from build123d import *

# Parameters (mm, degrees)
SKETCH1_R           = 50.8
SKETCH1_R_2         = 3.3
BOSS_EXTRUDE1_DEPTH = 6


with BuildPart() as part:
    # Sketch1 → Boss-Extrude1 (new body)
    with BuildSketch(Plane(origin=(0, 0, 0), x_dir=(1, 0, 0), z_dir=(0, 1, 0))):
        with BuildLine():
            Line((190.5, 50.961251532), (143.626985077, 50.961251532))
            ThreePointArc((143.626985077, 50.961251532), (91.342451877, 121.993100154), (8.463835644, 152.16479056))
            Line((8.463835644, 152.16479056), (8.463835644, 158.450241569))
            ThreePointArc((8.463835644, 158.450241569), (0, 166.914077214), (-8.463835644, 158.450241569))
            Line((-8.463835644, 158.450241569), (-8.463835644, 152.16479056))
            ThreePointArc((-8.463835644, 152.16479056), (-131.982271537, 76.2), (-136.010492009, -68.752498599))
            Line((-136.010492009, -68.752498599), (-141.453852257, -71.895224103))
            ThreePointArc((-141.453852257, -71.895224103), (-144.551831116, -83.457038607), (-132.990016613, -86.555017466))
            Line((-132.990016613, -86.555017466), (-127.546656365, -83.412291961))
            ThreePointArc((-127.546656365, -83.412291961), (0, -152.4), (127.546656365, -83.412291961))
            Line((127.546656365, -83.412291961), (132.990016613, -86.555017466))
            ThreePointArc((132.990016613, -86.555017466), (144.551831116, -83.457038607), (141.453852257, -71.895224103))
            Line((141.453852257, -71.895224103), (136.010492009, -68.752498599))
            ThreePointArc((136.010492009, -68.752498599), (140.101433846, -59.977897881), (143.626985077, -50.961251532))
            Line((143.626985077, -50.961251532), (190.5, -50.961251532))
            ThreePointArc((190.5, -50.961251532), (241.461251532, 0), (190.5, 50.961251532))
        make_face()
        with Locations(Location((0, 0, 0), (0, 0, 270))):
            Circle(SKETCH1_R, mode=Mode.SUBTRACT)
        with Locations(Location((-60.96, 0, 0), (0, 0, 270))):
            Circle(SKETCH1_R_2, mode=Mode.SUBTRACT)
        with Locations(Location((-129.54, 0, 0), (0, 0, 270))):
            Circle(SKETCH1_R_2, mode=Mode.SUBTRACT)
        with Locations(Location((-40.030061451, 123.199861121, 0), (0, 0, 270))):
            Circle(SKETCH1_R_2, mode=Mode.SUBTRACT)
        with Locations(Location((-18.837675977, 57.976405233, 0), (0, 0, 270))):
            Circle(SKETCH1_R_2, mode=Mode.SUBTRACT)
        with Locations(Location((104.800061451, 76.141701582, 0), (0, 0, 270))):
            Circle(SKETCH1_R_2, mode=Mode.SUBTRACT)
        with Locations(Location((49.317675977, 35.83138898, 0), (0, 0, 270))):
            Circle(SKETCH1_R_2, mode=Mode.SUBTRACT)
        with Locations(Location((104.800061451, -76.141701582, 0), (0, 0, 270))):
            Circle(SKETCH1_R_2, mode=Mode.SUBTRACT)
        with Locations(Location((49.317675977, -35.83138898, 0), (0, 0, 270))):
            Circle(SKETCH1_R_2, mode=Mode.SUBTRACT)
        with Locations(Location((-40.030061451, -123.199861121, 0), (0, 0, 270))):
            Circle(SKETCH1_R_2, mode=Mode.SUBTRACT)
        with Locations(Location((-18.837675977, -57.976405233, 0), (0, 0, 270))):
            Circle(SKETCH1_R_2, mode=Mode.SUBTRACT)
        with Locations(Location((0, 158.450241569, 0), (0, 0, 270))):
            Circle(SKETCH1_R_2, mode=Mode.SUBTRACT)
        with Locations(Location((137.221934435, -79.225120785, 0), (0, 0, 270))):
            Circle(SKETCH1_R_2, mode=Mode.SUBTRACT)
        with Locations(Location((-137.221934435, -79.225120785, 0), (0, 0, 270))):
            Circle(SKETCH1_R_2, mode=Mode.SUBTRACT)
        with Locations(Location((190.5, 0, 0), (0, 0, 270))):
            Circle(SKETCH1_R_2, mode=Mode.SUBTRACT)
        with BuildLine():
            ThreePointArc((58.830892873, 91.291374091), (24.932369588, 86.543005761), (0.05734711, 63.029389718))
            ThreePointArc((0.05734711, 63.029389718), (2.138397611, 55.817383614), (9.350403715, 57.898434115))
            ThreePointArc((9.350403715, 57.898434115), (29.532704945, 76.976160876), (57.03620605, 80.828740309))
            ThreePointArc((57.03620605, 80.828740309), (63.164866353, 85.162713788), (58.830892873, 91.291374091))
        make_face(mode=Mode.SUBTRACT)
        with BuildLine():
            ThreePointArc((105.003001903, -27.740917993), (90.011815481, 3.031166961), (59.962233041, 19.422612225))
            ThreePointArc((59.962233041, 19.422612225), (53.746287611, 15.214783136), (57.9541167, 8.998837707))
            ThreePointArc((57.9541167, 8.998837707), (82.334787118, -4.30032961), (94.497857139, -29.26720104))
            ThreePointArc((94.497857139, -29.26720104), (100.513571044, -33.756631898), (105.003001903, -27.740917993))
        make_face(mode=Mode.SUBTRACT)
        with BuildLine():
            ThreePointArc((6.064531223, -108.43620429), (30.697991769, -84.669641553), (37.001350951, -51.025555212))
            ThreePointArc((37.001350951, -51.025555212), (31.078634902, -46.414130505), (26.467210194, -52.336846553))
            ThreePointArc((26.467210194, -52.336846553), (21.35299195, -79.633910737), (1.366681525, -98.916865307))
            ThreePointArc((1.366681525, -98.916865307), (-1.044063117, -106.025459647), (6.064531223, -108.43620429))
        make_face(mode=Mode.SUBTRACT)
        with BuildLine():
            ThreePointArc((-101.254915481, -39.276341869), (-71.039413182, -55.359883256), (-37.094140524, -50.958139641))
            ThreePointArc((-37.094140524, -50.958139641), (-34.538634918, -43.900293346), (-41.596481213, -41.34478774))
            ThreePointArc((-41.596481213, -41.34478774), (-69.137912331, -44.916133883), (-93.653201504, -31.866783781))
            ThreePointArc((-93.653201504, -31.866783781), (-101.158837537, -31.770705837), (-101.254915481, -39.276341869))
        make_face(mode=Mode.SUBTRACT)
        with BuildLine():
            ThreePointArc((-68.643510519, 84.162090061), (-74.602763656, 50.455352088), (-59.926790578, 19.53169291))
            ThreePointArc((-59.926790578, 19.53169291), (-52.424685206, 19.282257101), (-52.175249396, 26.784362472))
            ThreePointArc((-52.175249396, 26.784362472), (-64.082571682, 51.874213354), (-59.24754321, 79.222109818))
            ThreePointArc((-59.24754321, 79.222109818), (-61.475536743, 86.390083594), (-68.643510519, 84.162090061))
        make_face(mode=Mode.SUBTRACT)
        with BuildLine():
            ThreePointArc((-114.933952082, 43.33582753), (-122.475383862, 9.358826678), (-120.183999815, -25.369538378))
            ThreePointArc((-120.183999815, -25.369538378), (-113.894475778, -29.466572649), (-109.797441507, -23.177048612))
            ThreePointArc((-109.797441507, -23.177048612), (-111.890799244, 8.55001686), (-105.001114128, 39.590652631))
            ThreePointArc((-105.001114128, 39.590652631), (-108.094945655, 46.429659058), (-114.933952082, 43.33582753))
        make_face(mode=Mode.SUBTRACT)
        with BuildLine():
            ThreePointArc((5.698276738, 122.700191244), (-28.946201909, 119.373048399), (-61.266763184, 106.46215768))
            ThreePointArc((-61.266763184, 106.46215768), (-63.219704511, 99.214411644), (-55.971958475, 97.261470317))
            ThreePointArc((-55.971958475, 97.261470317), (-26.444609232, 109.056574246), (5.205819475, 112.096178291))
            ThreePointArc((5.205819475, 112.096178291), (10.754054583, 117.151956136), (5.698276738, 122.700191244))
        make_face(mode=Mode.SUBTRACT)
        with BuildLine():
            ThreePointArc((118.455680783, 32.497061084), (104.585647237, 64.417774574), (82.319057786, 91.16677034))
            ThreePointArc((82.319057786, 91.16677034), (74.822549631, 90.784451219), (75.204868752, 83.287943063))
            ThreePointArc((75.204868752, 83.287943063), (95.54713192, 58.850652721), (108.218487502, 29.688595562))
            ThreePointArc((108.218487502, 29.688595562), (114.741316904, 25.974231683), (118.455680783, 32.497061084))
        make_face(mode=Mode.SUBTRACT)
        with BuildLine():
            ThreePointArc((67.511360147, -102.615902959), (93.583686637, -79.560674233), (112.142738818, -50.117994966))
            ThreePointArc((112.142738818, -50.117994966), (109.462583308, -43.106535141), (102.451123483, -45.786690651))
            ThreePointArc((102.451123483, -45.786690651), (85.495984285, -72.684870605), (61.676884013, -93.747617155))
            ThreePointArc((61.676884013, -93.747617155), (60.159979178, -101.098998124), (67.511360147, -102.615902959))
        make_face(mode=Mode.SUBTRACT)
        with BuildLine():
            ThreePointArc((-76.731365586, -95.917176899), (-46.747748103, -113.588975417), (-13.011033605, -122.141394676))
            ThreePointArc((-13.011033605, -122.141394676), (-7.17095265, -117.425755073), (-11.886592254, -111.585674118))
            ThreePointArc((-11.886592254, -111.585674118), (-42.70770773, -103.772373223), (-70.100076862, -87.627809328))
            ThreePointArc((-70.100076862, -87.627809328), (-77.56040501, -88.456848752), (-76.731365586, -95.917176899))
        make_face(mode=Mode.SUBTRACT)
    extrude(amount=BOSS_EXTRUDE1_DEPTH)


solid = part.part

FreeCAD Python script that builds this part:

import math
import FreeCAD as App
import Part
import Sketcher

doc = App.newDocument("Part")
body = doc.addObject("PartDesign::Body", "Body")

sketch1 = doc.addObject("Sketcher::SketchObject", "Sketch")
body.addObject(sketch1)
sketch1.AttachmentSupport = (doc.XZ_Plane, [""])
sketch1.MapMode = "FlatFace"
sketch1.addGeometry(Part.LineSegment(App.Vector(190.5, -50.961252, 0), App.Vector(143.626985, -50.961252, 0)), False)
sketch1.addGeometry(Part.ArcOfCircle(Part.Circle(App.Vector(0, 0, 0), App.Vector(0, 0, 1), 152.4), math.radians(-86.816327), math.radians(-19.535534)), False)
sketch1.addGeometry(Part.LineSegment(App.Vector(8.463836, -152.164791, 0), App.Vector(8.463836, -158.450242, 0)), False)
sketch1.addGeometry(Part.ArcOfCircle(Part.Circle(App.Vector(0, -158.450242, 0), App.Vector(0, 0, 1), 8.463836), math.radians(180), math.radians(360)), False)
sketch1.addGeometry(Part.LineSegment(App.Vector(-8.463836, -158.450242, 0), App.Vector(-8.463836, -152.164791, 0)), False)
sketch1.addGeometry(Part.ArcOfCircle(Part.Circle(App.Vector(0, 0, 0), App.Vector(0, 0, 1), 152.4), math.radians(153.183673), math.radians(266.816327)), False)
sketch1.addGeometry(Part.LineSegment(App.Vector(-136.010492, 68.752499, 0), App.Vector(-141.453852, 71.895224, 0)), False)
sketch1.addGeometry(Part.ArcOfCircle(Part.Circle(App.Vector(-137.221934, 79.225121, 0), App.Vector(0, 0, 1), 8.463836), math.radians(60), math.radians(240)), False)
sketch1.addGeometry(Part.LineSegment(App.Vector(-132.990017, 86.555017, 0), App.Vector(-127.546656, 83.412292, 0)), False)
sketch1.addGeometry(Part.ArcOfCircle(Part.Circle(App.Vector(0, 0, 0), App.Vector(0, 0, 1), 152.4), math.radians(33.183673), math.radians(146.816327)), False)
sketch1.addGeometry(Part.LineSegment(App.Vector(127.546656, 83.412292, 0), App.Vector(132.990017, 86.555017, 0)), False)
sketch1.addGeometry(Part.ArcOfCircle(Part.Circle(App.Vector(137.221934, 79.225121, 0), App.Vector(0, 0, 1), 8.463836), math.radians(-60), math.radians(120)), False)
sketch1.addGeometry(Part.LineSegment(App.Vector(141.453852, 71.895224, 0), App.Vector(136.010492, 68.752499, 0)), False)
sketch1.addGeometry(Part.ArcOfCircle(Part.Circle(App.Vector(0, 0, 0), App.Vector(0, 0, 1), 152.4), math.radians(19.535534), math.radians(26.816327)), False)
sketch1.addGeometry(Part.LineSegment(App.Vector(143.626985, 50.961252, 0), App.Vector(190.5, 50.961252, 0)), False)
sketch1.addGeometry(Part.ArcOfCircle(Part.Circle(App.Vector(190.5, 0, 0), App.Vector(0, 0, 1), 50.961252), math.radians(-90), math.radians(90)), False)
sketch1.addGeometry(Part.Circle(App.Vector(-137.221934, 79.225121, 0), App.Vector(0, 0, 1), 3.3), False)
sketch1.addGeometry(Part.Circle(App.Vector(-40.030061, 123.199861, 0), App.Vector(0, 0, 1), 3.3), False)
sketch1.addGeometry(Part.ArcOfCircle(Part.Circle(App.Vector(0, 0, 0), App.Vector(0, 0, 1), 122.832436), math.radians(96.080466), math.radians(128.658943)), False)
sketch1.addGeometry(Part.ArcOfCircle(Part.Circle(App.Vector(-73.415721, 91.772493, 0), App.Vector(0, 0, 1), 5.307721), math.radians(128.658943), math.radians(308.658943)), False)
sketch1.addGeometry(Part.ArcOfCircle(Part.Circle(App.Vector(0, 0, 0), App.Vector(0, 0, 1), 112.216994), math.radians(96.080466), math.radians(128.658943)), False)
sketch1.addGeometry(Part.ArcOfCircle(Part.Circle(App.Vector(-12.448813, 116.863534, 0), App.Vector(0, 0, 1), 5.307721), math.radians(-83.919534), math.radians(96.080466)), False)
sketch1.addGeometry(Part.Circle(App.Vector(-18.837676, 57.976405, 0), App.Vector(0, 0, 1), 3.3), False)
sketch1.addGeometry(Part.ArcOfCircle(Part.Circle(App.Vector(-18.837676, 57.976405, 0), App.Vector(0, 0, 1), 56.269985), math.radians(-7.095687), math.radians(63.73339)), False)
sketch1.addGeometry(Part.ArcOfCircle(Part.Circle(App.Vector(3.715606, 103.676535, 0), App.Vector(0, 0, 1), 5.307721), math.radians(63.73339), math.radians(243.73339)), False)
sketch1.addGeometry(Part.ArcOfCircle(Part.Circle(App.Vector(-18.837676, 57.976405, 0), App.Vector(0, 0, 1), 45.654543), math.radians(-7.095687), math.radians(63.73339)), False)
sketch1.addGeometry(Part.ArcOfCircle(Part.Circle(App.Vector(31.734281, 51.681201, 0), App.Vector(0, 0, 1), 5.307721), math.radians(172.904313), math.radians(352.904313)), False)
sketch1.addGeometry(Part.ArcOfCircle(Part.Circle(App.Vector(-60.96, 0, 0), App.Vector(0, 0, 1), 56.269985), math.radians(64.904313), math.radians(135.73339)), False)
sketch1.addGeometry(Part.ArcOfCircle(Part.Circle(App.Vector(-97.454058, 35.571563, 0), App.Vector(0, 0, 1), 5.307721), math.radians(135.73339), math.radians(315.73339)), False)
sketch1.addGeometry(Part.ArcOfCircle(Part.Circle(App.Vector(-60.96, 0, 0), App.Vector(0, 0, 1), 45.654543), math.radians(64.904313), math.radians(135.73339)), False)
sketch1.addGeometry(Part.ArcOfCircle(Part.Circle(App.Vector(-39.345311, 46.151464, 0), App.Vector(0, 0, 1), 5.307721), math.radians(-115.095687), math.radians(64.904313)), False)
sketch1.addGeometry(Part.Circle(App.Vector(-129.54, 0, 0), App.Vector(0, 0, 1), 3.3), False)
sketch1.addGeometry(Part.ArcOfCircle(Part.Circle(App.Vector(0, 0, 0), App.Vector(0, 0, 1), 122.832436), math.radians(168.080466), math.radians(200.658943)), False)
sketch1.addGeometry(Part.ArcOfCircle(Part.Circle(App.Vector(-109.967533, -41.46324, 0), App.Vector(0, 0, 1), 5.307721), math.radians(-159.341057), math.radians(20.658943)), False)
sketch1.addGeometry(Part.ArcOfCircle(Part.Circle(App.Vector(0, 0, 0), App.Vector(0, 0, 1), 112.216994), math.radians(168.080466), math.radians(200.658943)), False)
sketch1.addGeometry(Part.ArcOfCircle(Part.Circle(App.Vector(-114.990721, 24.273293, 0), App.Vector(0, 0, 1), 5.307721), math.radians(-11.919534), math.radians(168.080466)), False)
sketch1.addGeometry(Part.Circle(App.Vector(-60.96, 0, 0), App.Vector(0, 0, 1), 3.3), False)
sketch1.addGeometry(Part.Circle(App.Vector(0, 0, 0), App.Vector(0, 0, 1), 50.8), False)
sketch1.addGeometry(Part.ArcOfCircle(Part.Circle(App.Vector(0, 0, 0), App.Vector(0, 0, 1), 122.832436), math.radians(24.080466), math.radians(56.658943)), False)
sketch1.addGeometry(Part.ArcOfCircle(Part.Circle(App.Vector(64.594122, 98.18176, 0), App.Vector(0, 0, 1), 5.307721), math.radians(56.658943), math.radians(236.658943)), False)
sketch1.addGeometry(Part.ArcOfCircle(Part.Circle(App.Vector(0, 0, 0), App.Vector(0, 0, 1), 112.216994), math.radians(24.080466), math.radians(56.658943)), False)
sketch1.addGeometry(Part.ArcOfCircle(Part.Circle(App.Vector(107.296931, 47.952343, 0), App.Vector(0, 0, 1), 5.307721), math.radians(-155.919534), math.radians(24.080466)), False)
sketch1.addGeometry(Part.Circle(App.Vector(104.800061, 76.141702, 0), App.Vector(0, 0, 1), 3.3), False)
sketch1.addGeometry(Part.Circle(App.Vector(137.221934, 79.225121, 0), App.Vector(0, 0, 1), 3.3), False)
sketch1.addGeometry(Part.Circle(App.Vector(49.317676, 35.831389, 0), App.Vector(0, 0, 1), 3.3), False)
sketch1.addGeometry(Part.ArcOfCircle(Part.Circle(App.Vector(49.317676, 35.831389, 0), App.Vector(0, 0, 1), 56.269985), math.radians(-79.095687), math.radians(-8.26661)), False)
sketch1.addGeometry(Part.ArcOfCircle(Part.Circle(App.Vector(99.75043, 28.50406, 0), App.Vector(0, 0, 1), 5.307721), math.radians(-8.26661), math.radians(171.73339)), False)
sketch1.addGeometry(Part.ArcOfCircle(Part.Circle(App.Vector(49.317676, 35.831389, 0), App.Vector(0, 0, 1), 45.654543), math.radians(-79.095687), math.radians(-8.26661)), False)
sketch1.addGeometry(Part.ArcOfCircle(Part.Circle(App.Vector(58.958175, -14.210725, 0), App.Vector(0, 0, 1), 5.307721), math.radians(100.904313), math.radians(280.904313)), False)
sketch1.addGeometry(Part.Circle(App.Vector(190.5, 0, 0), App.Vector(0, 0, 1), 3.3), False)
sketch1.addGeometry(Part.ArcOfCircle(Part.Circle(App.Vector(-18.837676, -57.976405, 0), App.Vector(0, 0, 1), 56.269985), math.radians(136.904313), math.radians(207.73339)), False)
sketch1.addGeometry(Part.ArcOfCircle(Part.Circle(App.Vector(-63.945527, -81.6921, 0), App.Vector(0, 0, 1), 5.307721), math.radians(-152.26661), math.radians(27.73339)), False)
sketch1.addGeometry(Part.ArcOfCircle(Part.Circle(App.Vector(-18.837676, -57.976405, 0), App.Vector(0, 0, 1), 45.654543), math.radians(136.904313), math.radians(207.73339)), False)
sketch1.addGeometry(Part.ArcOfCircle(Part.Circle(App.Vector(-56.05102, -23.158028, 0), App.Vector(0, 0, 1), 5.307721), math.radians(-43.095687), math.radians(136.904313)), False)
sketch1.addGeometry(Part.Circle(App.Vector(-18.837676, -57.976405, 0), App.Vector(0, 0, 1), 3.3), False)
sketch1.addGeometry(Part.Circle(App.Vector(-40.030061, -123.199861, 0), App.Vector(0, 0, 1), 3.3), False)
sketch1.addGeometry(Part.ArcOfCircle(Part.Circle(App.Vector(0, 0, 0), App.Vector(0, 0, 1), 122.832436), math.radians(-119.919534), math.radians(-87.341057)), False)
sketch1.addGeometry(Part.ArcOfCircle(Part.Circle(App.Vector(5.452048, -117.398185, 0), App.Vector(0, 0, 1), 5.307721), math.radians(-87.341057), math.radians(92.658943)), False)
sketch1.addGeometry(Part.ArcOfCircle(Part.Circle(App.Vector(0, 0, 0), App.Vector(0, 0, 1), 112.216994), math.radians(-119.919534), math.radians(-87.341057)), False)
sketch1.addGeometry(Part.ArcOfCircle(Part.Circle(App.Vector(-58.619361, -101.861814, 0), App.Vector(0, 0, 1), 5.307721), math.radians(60.080466), math.radians(240.080466)), False)
sketch1.addGeometry(Part.Circle(App.Vector(0, -158.450242, 0), App.Vector(0, 0, 1), 3.3), False)
sketch1.addGeometry(Part.Circle(App.Vector(49.317676, -35.831389, 0), App.Vector(0, 0, 1), 3.3), False)
sketch1.addGeometry(Part.ArcOfCircle(Part.Circle(App.Vector(49.317676, -35.831389, 0), App.Vector(0, 0, 1), 56.269985), math.radians(-151.095687), math.radians(-80.26661)), False)
sketch1.addGeometry(Part.ArcOfCircle(Part.Circle(App.Vector(57.933549, -86.060057, 0), App.Vector(0, 0, 1), 5.307721), math.radians(-80.26661), math.radians(99.73339)), False)
sketch1.addGeometry(Part.ArcOfCircle(Part.Circle(App.Vector(49.317676, -35.831389, 0), App.Vector(0, 0, 1), 45.654543), math.radians(-151.095687), math.radians(-80.26661)), False)
sketch1.addGeometry(Part.ArcOfCircle(Part.Circle(App.Vector(4.703875, -60.463912, 0), App.Vector(0, 0, 1), 5.307721), math.radians(28.904313), math.radians(208.904313)), False)
sketch1.addGeometry(Part.ArcOfCircle(Part.Circle(App.Vector(0, 0, 0), App.Vector(0, 0, 1), 122.832436), math.radians(-47.919534), math.radians(-15.341057)), False)
sketch1.addGeometry(Part.ArcOfCircle(Part.Circle(App.Vector(113.337084, -31.092828, 0), App.Vector(0, 0, 1), 5.307721), math.radians(-15.341057), math.radians(164.658943)), False)
sketch1.addGeometry(Part.ArcOfCircle(Part.Circle(App.Vector(0, 0, 0), App.Vector(0, 0, 1), 112.216994), math.radians(-47.919534), math.radians(-15.341057)), False)
sketch1.addGeometry(Part.ArcOfCircle(Part.Circle(App.Vector(78.761963, -87.227357, 0), App.Vector(0, 0, 1), 5.307721), math.radians(132.080466), math.radians(312.080466)), False)
sketch1.addGeometry(Part.Circle(App.Vector(104.800061, -76.141702, 0), App.Vector(0, 0, 1), 3.3), False)
sketch1.addConstraint(Sketcher.Constraint("Coincident", 0, 2, 1, 2))
sketch1.addConstraint(Sketcher.Constraint("Coincident", 1, 1, 2, 1))
sketch1.addConstraint(Sketcher.Constraint("Coincident", 2, 2, 3, 2))
sketch1.addConstraint(Sketcher.Constraint("Coincident", 3, 1, 4, 1))
sketch1.addConstraint(Sketcher.Constraint("Coincident", 4, 2, 5, 2))
sketch1.addConstraint(Sketcher.Constraint("Coincident", 5, 1, 6, 1))
sketch1.addConstraint(Sketcher.Constraint("Coincident", 6, 2, 7, 2))
sketch1.addConstraint(Sketcher.Constraint("Coincident", 7, 1, 8, 1))
sketch1.addConstraint(Sketcher.Constraint("Coincident", 8, 2, 9, 2))
sketch1.addConstraint(Sketcher.Constraint("Coincident", 9, 1, 10, 1))
sketch1.addConstraint(Sketcher.Constraint("Coincident", 10, 2, 11, 2))
sketch1.addConstraint(Sketcher.Constraint("Coincident", 11, 1, 12, 1))
sketch1.addConstraint(Sketcher.Constraint("Coincident", 12, 2, 13, 2))
sketch1.addConstraint(Sketcher.Constraint("Coincident", 13, 1, 14, 1))
sketch1.addConstraint(Sketcher.Constraint("Coincident", 14, 2, 15, 2))
sketch1.addConstraint(Sketcher.Constraint("Coincident", 15, 1, 0, 1))
sketch1.addConstraint(Sketcher.Constraint("Coincident", 18, 2, 19, 1))
sketch1.addConstraint(Sketcher.Constraint("Coincident", 19, 2, 20, 2))
sketch1.addConstraint(Sketcher.Constraint("Coincident", 20, 1, 21, 1))
sketch1.addConstraint(Sketcher.Constraint("Coincident", 21, 2, 18, 1))
sketch1.addConstraint(Sketcher.Constraint("Coincident", 23, 2, 24, 1))
sketch1.addConstraint(Sketcher.Constraint("Coincident", 24, 2, 25, 2))
sketch1.addConstraint(Sketcher.Constraint("Coincident", 25, 1, 26, 1))
sketch1.addConstraint(Sketcher.Constraint("Coincident", 26, 2, 23, 1))
sketch1.addConstraint(Sketcher.Constraint("Coincident", 27, 2, 28, 1))
sketch1.addConstraint(Sketcher.Constraint("Coincident", 28, 2, 29, 2))
sketch1.addConstraint(Sketcher.Constraint("Coincident", 29, 1, 30, 1))
sketch1.addConstraint(Sketcher.Constraint("Coincident", 30, 2, 27, 1))
sketch1.addConstraint(Sketcher.Constraint("Coincident", 32, 2, 33, 1))
sketch1.addConstraint(Sketcher.Constraint("Coincident", 33, 2, 34, 2))
sketch1.addConstraint(Sketcher.Constraint("Coincident", 34, 1, 35, 1))
sketch1.addConstraint(Sketcher.Constraint("Coincident", 35, 2, 32, 1))
sketch1.addConstraint(Sketcher.Constraint("Coincident", 38, 2, 39, 1))
sketch1.addConstraint(Sketcher.Constraint("Coincident", 39, 2, 40, 2))
sketch1.addConstraint(Sketcher.Constraint("Coincident", 40, 1, 41, 1))
sketch1.addConstraint(Sketcher.Constraint("Coincident", 41, 2, 38, 1))
sketch1.addConstraint(Sketcher.Constraint("Coincident", 45, 2, 46, 1))
sketch1.addConstraint(Sketcher.Constraint("Coincident", 46, 2, 47, 2))
sketch1.addConstraint(Sketcher.Constraint("Coincident", 47, 1, 48, 1))
sketch1.addConstraint(Sketcher.Constraint("Coincident", 48, 2, 45, 1))
sketch1.addConstraint(Sketcher.Constraint("Coincident", 50, 2, 51, 1))
sketch1.addConstraint(Sketcher.Constraint("Coincident", 51, 2, 52, 2))
sketch1.addConstraint(Sketcher.Constraint("Coincident", 52, 1, 53, 1))
sketch1.addConstraint(Sketcher.Constraint("Coincident", 53, 2, 50, 1))
sketch1.addConstraint(Sketcher.Constraint("Coincident", 56, 2, 57, 1))
sketch1.addConstraint(Sketcher.Constraint("Coincident", 57, 2, 58, 2))
sketch1.addConstraint(Sketcher.Constraint("Coincident", 58, 1, 59, 1))
sketch1.addConstraint(Sketcher.Constraint("Coincident", 59, 2, 56, 1))
sketch1.addConstraint(Sketcher.Constraint("Coincident", 62, 2, 63, 1))
sketch1.addConstraint(Sketcher.Constraint("Coincident", 63, 2, 64, 2))
sketch1.addConstraint(Sketcher.Constraint("Coincident", 64, 1, 65, 1))
sketch1.addConstraint(Sketcher.Constraint("Coincident", 65, 2, 62, 1))
sketch1.addConstraint(Sketcher.Constraint("Coincident", 66, 2, 67, 1))
sketch1.addConstraint(Sketcher.Constraint("Coincident", 67, 2, 68, 2))
sketch1.addConstraint(Sketcher.Constraint("Coincident", 68, 1, 69, 1))
sketch1.addConstraint(Sketcher.Constraint("Coincident", 69, 2, 66, 1))
sketch1.addConstraint(Sketcher.Constraint("Horizontal", 0))
sketch1.addConstraint(Sketcher.Constraint("Vertical", 2))
sketch1.addConstraint(Sketcher.Constraint("Vertical", 4))
sketch1.addConstraint(Sketcher.Constraint("Horizontal", 14))
sketch1.addConstraint(Sketcher.Constraint("Coincident", 1, 3, -1, 1))
sketch1.addConstraint(Sketcher.Constraint("Coincident", 5, 3, -1, 1))
sketch1.addConstraint(Sketcher.Constraint("Coincident", 9, 3, -1, 1))
sketch1.addConstraint(Sketcher.Constraint("Coincident", 13, 3, -1, 1))
sketch1.addConstraint(Sketcher.Constraint("Coincident", 18, 3, -1, 1))
sketch1.addConstraint(Sketcher.Constraint("Coincident", 20, 3, -1, 1))
sketch1.addConstraint(Sketcher.Constraint("Coincident", 32, 3, -1, 1))
sketch1.addConstraint(Sketcher.Constraint("Coincident", 34, 3, -1, 1))
sketch1.addConstraint(Sketcher.Constraint("Coincident", 37, 3, -1, 1))
sketch1.addConstraint(Sketcher.Constraint("Coincident", 38, 3, -1, 1))
sketch1.addConstraint(Sketcher.Constraint("Coincident", 40, 3, -1, 1))
sketch1.addConstraint(Sketcher.Constraint("Coincident", 56, 3, -1, 1))
sketch1.addConstraint(Sketcher.Constraint("Coincident", 58, 3, -1, 1))
sketch1.addConstraint(Sketcher.Constraint("Coincident", 66, 3, -1, 1))
sketch1.addConstraint(Sketcher.Constraint("Coincident", 68, 3, -1, 1))
sketch1.addConstraint(Sketcher.Constraint("Coincident", 16, 3, 7, 3))
sketch1.addConstraint(Sketcher.Constraint("Coincident", 23, 3, 22, 3))
sketch1.addConstraint(Sketcher.Constraint("Coincident", 25, 3, 22, 3))
sketch1.addConstraint(Sketcher.Constraint("Coincident", 29, 3, 27, 3))
sketch1.addConstraint(Sketcher.Constraint("Coincident", 36, 3, 27, 3))
sketch1.addConstraint(Sketcher.Constraint("Coincident", 43, 3, 11, 3))
sketch1.addConstraint(Sketcher.Constraint("Coincident", 45, 3, 44, 3))
sketch1.addConstraint(Sketcher.Constraint("Coincident", 47, 3, 44, 3))
sketch1.addConstraint(Sketcher.Constraint("Coincident", 49, 3, 15, 3))
sketch1.addConstraint(Sketcher.Constraint("Coincident", 52, 3, 50, 3))
sketch1.addConstraint(Sketcher.Constraint("Coincident", 54, 3, 50, 3))
sketch1.addConstraint(Sketcher.Constraint("Coincident", 60, 3, 3, 3))
sketch1.addConstraint(Sketcher.Constraint("Coincident", 62, 3, 61, 3))
sketch1.addConstraint(Sketcher.Constraint("Coincident", 64, 3, 61, 3))
sketch1.addConstraint(Sketcher.Constraint("PointOnObject", 3, 3, -2))
sketch1.addConstraint(Sketcher.Constraint("PointOnObject", 15, 3, -1))
sketch1.addConstraint(Sketcher.Constraint("PointOnObject", 27, 3, -1))
sketch1.addConstraint(Sketcher.Constraint("PointOnObject", 31, 3, -1))
sketch1.addConstraint(Sketcher.Constraint("Diameter", 16, 6.6))
sketch1.addConstraint(Sketcher.Constraint("Diameter", 17, 6.6))
sketch1.addConstraint(Sketcher.Constraint("Diameter", 22, 6.6))
sketch1.addConstraint(Sketcher.Constraint("Diameter", 31, 6.6))
sketch1.addConstraint(Sketcher.Constraint("Diameter", 36, 6.6))
sketch1.addConstraint(Sketcher.Constraint("Diameter", 37, 101.6))
sketch1.addConstraint(Sketcher.Constraint("Diameter", 42, 6.6))
sketch1.addConstraint(Sketcher.Constraint("Diameter", 43, 6.6))
sketch1.addConstraint(Sketcher.Constraint("Diameter", 44, 6.6))
sketch1.addConstraint(Sketcher.Constraint("Diameter", 49, 6.6))
sketch1.addConstraint(Sketcher.Constraint("Diameter", 54, 6.6))
sketch1.addConstraint(Sketcher.Constraint("Diameter", 55, 6.6))
sketch1.addConstraint(Sketcher.Constraint("Diameter", 60, 6.6))
sketch1.addConstraint(Sketcher.Constraint("Diameter", 61, 6.6))
sketch1.addConstraint(Sketcher.Constraint("Diameter", 70, 6.6))
sketch1.addConstraint(Sketcher.Constraint("Radius", 1, 152.4))
sketch1.addConstraint(Sketcher.Constraint("Radius", 5, 152.4))
sketch1.addConstraint(Sketcher.Constraint("Radius", 9, 152.4))
sketch1.addConstraint(Sketcher.Constraint("Radius", 13, 152.4))
sketch1.addConstraint(Sketcher.Constraint("DistanceX", -1, 1, 15, 3, 190.5))
sketch1.addConstraint(Sketcher.Constraint("DistanceX", -1, 1, 14, 2, 190.5))
sketch1.addConstraint(Sketcher.Constraint("DistanceX", -1, 1, 15, 1, 190.5))
sketch1.addConstraint(Sketcher.Constraint("DistanceX", 27, 3, -1, 1, 60.96))
sketch1.addConstraint(Sketcher.Constraint("DistanceX", 31, 3, -1, 1, 129.54))
sketch1.addConstraint(Sketcher.Constraint("Radius", 15, 50.961252))
sketch1.addConstraint(Sketcher.Constraint("Radius", 19, 5.307721))
sketch1.addConstraint(Sketcher.Constraint("Radius", 24, 5.307721))
sketch1.addConstraint(Sketcher.Constraint("Radius", 28, 5.307721))
sketch1.addConstraint(Sketcher.Constraint("Radius", 33, 5.307721))
sketch1.addConstraint(Sketcher.Constraint("Radius", 39, 5.307721))
sketch1.addConstraint(Sketcher.Constraint("Radius", 46, 5.307721))
sketch1.addConstraint(Sketcher.Constraint("Radius", 51, 5.307721))
sketch1.addConstraint(Sketcher.Constraint("Radius", 57, 5.307721))
sketch1.addConstraint(Sketcher.Constraint("Radius", 63, 5.307721))
sketch1.addConstraint(Sketcher.Constraint("Radius", 67, 5.307721))
sketch1.addConstraint(Sketcher.Constraint("DistanceX", 35, 2, -1, 1, 120.184))
sketch1.addConstraint(Sketcher.Constraint("DistanceX", -1, 1, 45, 2, 105.003002))
sketch1.addConstraint(Sketcher.Constraint("Radius", 3, 8.463836))
sketch1.addConstraint(Sketcher.Constraint("Radius", 7, 8.463836))
sketch1.addConstraint(Sketcher.Constraint("Radius", 11, 8.463836))
sketch1.addConstraint(Sketcher.Constraint("Radius", 18, 122.832436))
sketch1.addConstraint(Sketcher.Constraint("Radius", 23, 56.269985))
sketch1.addConstraint(Sketcher.Constraint("Radius", 27, 56.269985))
sketch1.addConstraint(Sketcher.Constraint("Radius", 32, 122.832436))
sketch1.addConstraint(Sketcher.Constraint("Radius", 38, 122.832436))
sketch1.addConstraint(Sketcher.Constraint("Radius", 45, 56.269985))
sketch1.addConstraint(Sketcher.Constraint("Radius", 50, 56.269985))
sketch1.addConstraint(Sketcher.Constraint("Radius", 56, 122.832436))
sketch1.addConstraint(Sketcher.Constraint("Radius", 62, 56.269985))
sketch1.addConstraint(Sketcher.Constraint("Radius", 66, 122.832436))
sketch1.addConstraint(Sketcher.Constraint("DistanceY", 2, 2, 2, 1, 6.285451))
sketch1.addConstraint(Sketcher.Constraint("DistanceY", 4, 1, 4, 2, 6.285451))
sketch1.addConstraint(Sketcher.Constraint("DistanceY", -1, 1, 26, 3, 51.681201))
sketch1.addConstraint(Sketcher.Constraint("DistanceY", -1, 1, 42, 3, 76.141702))
sketch1.addConstraint(Sketcher.Constraint("DistanceY", 51, 3, -1, 1, 81.6921))
sketch1.addConstraint(Sketcher.Constraint("DistanceY", 70, 3, -1, 1, 76.141702))
sketch1.addConstraint(Sketcher.Constraint("DistanceY", -1, 1, 5, 1, 68.752499))
sketch1.addConstraint(Sketcher.Constraint("DistanceY", -1, 1, 12, 2, 68.752499))
sketch1.addConstraint(Sketcher.Constraint("DistanceX", 28, 2, -1, 1, 93.653202))
sketch1.addConstraint(Sketcher.Constraint("DistanceY", -1, 1, 46, 2, 29.267201))
sketch1.addConstraint(Sketcher.Constraint("Distance", 6, 6.285451))
sketch1.addConstraint(Sketcher.Constraint("Distance", 8, 6.285451))
sketch1.addConstraint(Sketcher.Constraint("Distance", 10, 6.285451))
sketch1.addConstraint(Sketcher.Constraint("Distance", 12, 6.285451))
sketch1.addConstraint(Sketcher.Constraint("DistanceY", 3, 3, -1, 1, 158.450242))
sketch1.addConstraint(Sketcher.Constraint("DistanceY", -1, 1, 7, 3, 79.225121))
sketch1.addConstraint(Sketcher.Constraint("DistanceY", -1, 1, 11, 3, 79.225121))
sketch1.addConstraint(Sketcher.Constraint("DistanceX", 17, 3, -1, 1, 40.030061))
sketch1.addConstraint(Sketcher.Constraint("DistanceY", -1, 1, 17, 3, 123.199861))
sketch1.addConstraint(Sketcher.Constraint("DistanceX", 19, 3, -1, 1, 73.415721))
sketch1.addConstraint(Sketcher.Constraint("DistanceX", -1, 1, 26, 3, 31.734281))
sketch1.addConstraint(Sketcher.Constraint("DistanceX", 28, 3, -1, 1, 97.454058))
sketch1.addConstraint(Sketcher.Constraint("DistanceX", 30, 3, -1, 1, 39.345311))
sketch1.addConstraint(Sketcher.Constraint("DistanceY", 33, 3, -1, 1, 41.46324))
sketch1.addConstraint(Sketcher.Constraint("DistanceX", 35, 3, -1, 1, 114.990721))
sketch1.addConstraint(Sketcher.Constraint("DistanceY", -1, 1, 39, 3, 98.18176))
sketch1.addConstraint(Sketcher.Constraint("DistanceX", -1, 1, 41, 3, 107.296931))
sketch1.addConstraint(Sketcher.Constraint("DistanceX", -1, 1, 42, 3, 104.800061))
sketch1.addConstraint(Sketcher.Constraint("DistanceY", -1, 1, 44, 3, 35.831389))
sketch1.addConstraint(Sketcher.Constraint("DistanceX", -1, 1, 46, 3, 99.75043))
sketch1.addConstraint(Sketcher.Constraint("DistanceY", -1, 1, 46, 3, 28.50406))
sketch1.addConstraint(Sketcher.Constraint("DistanceX", 53, 3, -1, 1, 56.05102))
sketch1.addConstraint(Sketcher.Constraint("DistanceX", 55, 3, -1, 1, 40.030061))
sketch1.addConstraint(Sketcher.Constraint("DistanceY", 55, 3, -1, 1, 123.199861))
sketch1.addConstraint(Sketcher.Constraint("DistanceX", -1, 1, 57, 3, 5.452048))
sketch1.addConstraint(Sketcher.Constraint("DistanceX", 59, 3, -1, 1, 58.619361))
sketch1.addConstraint(Sketcher.Constraint("DistanceY", 61, 3, -1, 1, 35.831389))
sketch1.addConstraint(Sketcher.Constraint("DistanceX", -1, 1, 63, 3, 57.933549))
sketch1.addConstraint(Sketcher.Constraint("DistanceY", 65, 3, -1, 1, 60.463912))
sketch1.addConstraint(Sketcher.Constraint("DistanceY", 67, 3, -1, 1, 31.092828))
sketch1.addConstraint(Sketcher.Constraint("DistanceX", -1, 1, 70, 3, 104.800061))
sketch1.addConstraint(Sketcher.Constraint("DistanceY", -1, 1, 8, 2, 83.412292))
sketch1.addConstraint(Sketcher.Constraint("DistanceY", -1, 1, 9, 1, 83.412292))
sketch1.addConstraint(Sketcher.Constraint("DistanceY", -1, 1, 19, 2, 87.627809))
sketch1.addConstraint(Sketcher.Constraint("DistanceX", -1, 1, 23, 2, 6.064531))
sketch1.addConstraint(Sketcher.Constraint("DistanceX", -1, 1, 24, 2, 1.366682))
sketch1.addConstraint(Sketcher.Constraint("DistanceX", -1, 1, 25, 1, 26.46721))
sketch1.addConstraint(Sketcher.Constraint("DistanceX", -1, 1, 26, 2, 37.001351))
sketch1.addConstraint(Sketcher.Constraint("DistanceY", -1, 1, 27, 2, 39.276342))
sketch1.addConstraint(Sketcher.Constraint("DistanceX", 29, 1, -1, 1, 41.596481))
sketch1.addConstraint(Sketcher.Constraint("DistanceX", 30, 2, -1, 1, 37.094141))
sketch1.addConstraint(Sketcher.Constraint("DistanceX", 34, 1, -1, 1, 109.797442))
sketch1.addConstraint(Sketcher.Constraint("DistanceX", -1, 1, 38, 2, 67.51136))
sketch1.addConstraint(Sketcher.Constraint("DistanceY", -1, 1, 40, 1, 45.786691))
sketch1.addConstraint(Sketcher.Constraint("DistanceX", -1, 1, 41, 2, 112.142739))
sketch1.addConstraint(Sketcher.Constraint("DistanceX", 50, 2, -1, 1, 68.643511))
sketch1.addConstraint(Sketcher.Constraint("DistanceY", 50, 2, -1, 1, 84.16209))
sketch1.addConstraint(Sketcher.Constraint("DistanceY", 51, 2, -1, 1, 79.22211))
sketch1.addConstraint(Sketcher.Constraint("DistanceX", 52, 1, -1, 1, 52.175249))
sketch1.addConstraint(Sketcher.Constraint("DistanceX", 53, 2, -1, 1, 59.926791))
sketch1.addConstraint(Sketcher.Constraint("DistanceY", 56, 2, -1, 1, 122.700191))
sketch1.addConstraint(Sketcher.Constraint("DistanceX", -1, 1, 57, 2, 5.205819))
sketch1.addConstraint(Sketcher.Constraint("DistanceX", 58, 1, -1, 1, 55.971958))
sketch1.addConstraint(Sketcher.Constraint("DistanceY", 63, 2, -1, 1, 80.82874))
sketch1.addConstraint(Sketcher.Constraint("DistanceY", 65, 2, -1, 1, 63.02939))
sketch1.addConstraint(Sketcher.Constraint("DistanceX", -1, 1, 66, 2, 118.455681))
sketch1.addConstraint(Sketcher.Constraint("DistanceX", -1, 1, 68, 1, 75.204869))
sketch1.addConstraint(Sketcher.Constraint("DistanceY", 69, 2, -1, 1, 91.16677))
sketch1.addConstraint(Sketcher.Constraint("DistanceX", 7, 3, -1, 1, 137.221934))
sketch1.addConstraint(Sketcher.Constraint("DistanceX", -1, 1, 11, 3, 137.221934))
sketch1.addConstraint(Sketcher.Constraint("DistanceX", 21, 3, -1, 1, 12.448813))
sketch1.addConstraint(Sketcher.Constraint("DistanceX", 22, 3, -1, 1, 18.837676))
sketch1.addConstraint(Sketcher.Constraint("DistanceX", -1, 1, 24, 3, 3.715606))
sketch1.addConstraint(Sketcher.Constraint("DistanceX", -1, 1, 48, 3, 58.958175))
sketch1.addConstraint(Sketcher.Constraint("DistanceX", 50, 3, -1, 1, 18.837676))
sketch1.addConstraint(Sketcher.Constraint("DistanceX", -1, 1, 61, 3, 49.317676))
sketch1.addConstraint(Sketcher.Constraint("DistanceX", -1, 1, 69, 3, 78.761963))
sketch1.addConstraint(Sketcher.Constraint("DistanceX", 18, 2, -1, 1, 76.731366))
sketch1.addConstraint(Sketcher.Constraint("DistanceX", 20, 1, -1, 1, 11.886592))
sketch1.addConstraint(Sketcher.Constraint("DistanceX", 21, 2, -1, 1, 13.011034))
sketch1.addConstraint(Sketcher.Constraint("DistanceX", 32, 2, -1, 1, 114.933952))
sketch1.addConstraint(Sketcher.Constraint("DistanceX", 33, 2, -1, 1, 105.001114))
sketch1.addConstraint(Sketcher.Constraint("DistanceX", -1, 1, 39, 2, 61.676884))
sketch1.addConstraint(Sketcher.Constraint("DistanceX", -1, 1, 47, 1, 57.954117))
sketch1.addConstraint(Sketcher.Constraint("DistanceX", -1, 1, 48, 2, 59.962233))
sketch1.addConstraint(Sketcher.Constraint("DistanceX", 59, 2, -1, 1, 61.266763))
sketch1.addConstraint(Sketcher.Constraint("DistanceX", -1, 1, 62, 2, 58.830893))
sketch1.addConstraint(Sketcher.Constraint("DistanceX", -1, 1, 64, 1, 9.350404))
sketch1.addConstraint(Sketcher.Constraint("DistanceX", -1, 1, 67, 2, 108.218488))
pad1 = doc.addObject("PartDesign::Pad", "Pad")
body.addObject(pad1)
pad1.Profile = sketch1
pad1.Length = 6
pad1.Reversed = True

doc.recompute()
